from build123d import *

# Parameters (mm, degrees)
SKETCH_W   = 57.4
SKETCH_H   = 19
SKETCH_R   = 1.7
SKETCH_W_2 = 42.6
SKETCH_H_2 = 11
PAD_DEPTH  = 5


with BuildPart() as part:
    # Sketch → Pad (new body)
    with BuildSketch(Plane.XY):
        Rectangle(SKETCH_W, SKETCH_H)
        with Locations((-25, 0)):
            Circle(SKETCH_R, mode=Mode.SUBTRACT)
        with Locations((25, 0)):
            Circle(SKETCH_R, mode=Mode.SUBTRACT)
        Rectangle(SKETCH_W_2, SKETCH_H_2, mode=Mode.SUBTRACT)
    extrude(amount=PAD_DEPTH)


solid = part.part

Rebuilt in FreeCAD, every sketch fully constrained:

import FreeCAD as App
import Part
import Sketcher

doc = App.newDocument("Part")
params = doc.addObject("Spreadsheet::Sheet", "Params")
for row, (alias, value) in enumerate([
    ("sketch1_diameter", "3.4 mm"),
    ("sketch1_height", "19 mm"),
    ("sketch1_height2", "11 mm"),
    ("sketch1_width", "57.4 mm"),
    ("sketch1_width2", "42.6 mm"),
    ("pad1_length", "5 mm"),
], start=1):
    params.set(f"A{row}", alias)
    params.set(f"B{row}", "=" + value)
    params.setAlias(f"B{row}", alias)

body = doc.addObject("PartDesign::Body", "Body")

# Sketch on XY plane
sketch1 = body.newObject("Sketcher::SketchObject", "Sketch")
sketch1.AttachmentSupport = (doc.getObject("XY_Plane"), [""])
sketch1.MapMode = "FlatFace"
sketch1.addGeometry(Part.LineSegment(App.Vector(-28.7, 9.5, 0), App.Vector(-28.7, -9.5, 0)), False)
sketch1.addGeometry(Part.LineSegment(App.Vector(-28.7, -9.5, 0), App.Vector(28.7, -9.5, 0)), False)
sketch1.addGeometry(Part.LineSegment(App.Vector(28.7, -9.5, 0), App.Vector(28.7, 9.5, 0)), False)
sketch1.addGeometry(Part.LineSegment(App.Vector(28.7, 9.5, 0), App.Vector(-28.7, 9.5, 0)), False)
sketch1.addGeometry(Part.Circle(App.Vector(-25, 0, 0), App.Vector(0, 0, 1), 1.7), False)
sketch1.addGeometry(Part.LineSegment(App.Vector(21.3, -5.5, 0), App.Vector(-21.3, -5.5, 0)), False)
sketch1.addGeometry(Part.LineSegment(App.Vector(-21.3, -5.5, 0), App.Vector(-21.3, 5.5, 0)), False)
sketch1.addGeometry(Part.LineSegment(App.Vector(-21.3, 5.5, 0), App.Vector(21.3, 5.5, 0)), False)
sketch1.addGeometry(Part.LineSegment(App.Vector(21.3, 5.5, 0), App.Vector(21.3, -5.5, 0)), False)
sketch1.addGeometry(Part.Circle(App.Vector(25, 0, 0), App.Vector(0, 0, 1), 1.7), False)
sketch1.addConstraint(Sketcher.Constraint("Coincident", 0, 2, 1, 1))
sketch1.addConstraint(Sketcher.Constraint("Coincident", 1, 2, 2, 1))
sketch1.addConstraint(Sketcher.Constraint("Coincident", 2, 2, 3, 1))
sketch1.addConstraint(Sketcher.Constraint("Coincident", 3, 2, 0, 1))
sketch1.addConstraint(Sketcher.Constraint("Coincident", 5, 2, 6, 1))
sketch1.addConstraint(Sketcher.Constraint("Coincident", 6, 2, 7, 1))
sketch1.addConstraint(Sketcher.Constraint("Coincident", 7, 2, 8, 1))
sketch1.addConstraint(Sketcher.Constraint("Coincident", 8, 2, 5, 1))
sketch1.addConstraint(Sketcher.Constraint("Vertical", 0))
sketch1.addConstraint(Sketcher.Constraint("Horizontal", 1))
sketch1.addConstraint(Sketcher.Constraint("Vertical", 2))
sketch1.addConstraint(Sketcher.Constraint("Horizontal", 3))
sketch1.addConstraint(Sketcher.Constraint("Horizontal", 5))
sketch1.addConstraint(Sketcher.Constraint("Vertical", 6))
sketch1.addConstraint(Sketcher.Constraint("Horizontal", 7))
sketch1.addConstraint(Sketcher.Constraint("Vertical", 8))
sketch1.addConstraint(Sketcher.Constraint("Equal", 4, 9))
sketch1.addConstraint(Sketcher.Constraint("Symmetric", 4, 3, 9, 3, -1, 1))
sketch1.addConstraint(Sketcher.Constraint("Symmetric", 0, 2, 2, 2, -1, 1))
sketch1.addConstraint(Sketcher.Constraint("Symmetric", 5, 2, 7, 2, -1, 1))
sketch1.addConstraint(Sketcher.Constraint("PointOnObject", 4, 3, -1))
sketch1.addConstraint(Sketcher.Constraint("Diameter", 4, 3.4))
sketch1.addConstraint(Sketcher.Constraint("DistanceY", 0, 2, 0, 1, 19.0))
sketch1.addConstraint(Sketcher.Constraint("DistanceY", 6, 1, 6, 2, 11.0))
sketch1.addConstraint(Sketcher.Constraint("DistanceX", 1, 1, 1, 2, 57.4))
sketch1.addConstraint(Sketcher.Constraint("DistanceX", 5, 2, 5, 1, 42.6))
sketch1.addConstraint(Sketcher.Constraint("DistanceX", 4, 3, -1, 1, 25.0))
sketch1.setExpression("Constraints[21]", "Params.sketch1_diameter")
sketch1.setExpression("Constraints[22]", "Params.sketch1_height")
sketch1.setExpression("Constraints[23]", "Params.sketch1_height2")
sketch1.setExpression("Constraints[24]", "Params.sketch1_width")
sketch1.setExpression("Constraints[25]", "Params.sketch1_width2")
pad1 = body.newObject("PartDesign::Pad", "Pad")
pad1.Profile = sketch1
pad1.setExpression("Length", "Params.pad1_length")

doc.recompute()
